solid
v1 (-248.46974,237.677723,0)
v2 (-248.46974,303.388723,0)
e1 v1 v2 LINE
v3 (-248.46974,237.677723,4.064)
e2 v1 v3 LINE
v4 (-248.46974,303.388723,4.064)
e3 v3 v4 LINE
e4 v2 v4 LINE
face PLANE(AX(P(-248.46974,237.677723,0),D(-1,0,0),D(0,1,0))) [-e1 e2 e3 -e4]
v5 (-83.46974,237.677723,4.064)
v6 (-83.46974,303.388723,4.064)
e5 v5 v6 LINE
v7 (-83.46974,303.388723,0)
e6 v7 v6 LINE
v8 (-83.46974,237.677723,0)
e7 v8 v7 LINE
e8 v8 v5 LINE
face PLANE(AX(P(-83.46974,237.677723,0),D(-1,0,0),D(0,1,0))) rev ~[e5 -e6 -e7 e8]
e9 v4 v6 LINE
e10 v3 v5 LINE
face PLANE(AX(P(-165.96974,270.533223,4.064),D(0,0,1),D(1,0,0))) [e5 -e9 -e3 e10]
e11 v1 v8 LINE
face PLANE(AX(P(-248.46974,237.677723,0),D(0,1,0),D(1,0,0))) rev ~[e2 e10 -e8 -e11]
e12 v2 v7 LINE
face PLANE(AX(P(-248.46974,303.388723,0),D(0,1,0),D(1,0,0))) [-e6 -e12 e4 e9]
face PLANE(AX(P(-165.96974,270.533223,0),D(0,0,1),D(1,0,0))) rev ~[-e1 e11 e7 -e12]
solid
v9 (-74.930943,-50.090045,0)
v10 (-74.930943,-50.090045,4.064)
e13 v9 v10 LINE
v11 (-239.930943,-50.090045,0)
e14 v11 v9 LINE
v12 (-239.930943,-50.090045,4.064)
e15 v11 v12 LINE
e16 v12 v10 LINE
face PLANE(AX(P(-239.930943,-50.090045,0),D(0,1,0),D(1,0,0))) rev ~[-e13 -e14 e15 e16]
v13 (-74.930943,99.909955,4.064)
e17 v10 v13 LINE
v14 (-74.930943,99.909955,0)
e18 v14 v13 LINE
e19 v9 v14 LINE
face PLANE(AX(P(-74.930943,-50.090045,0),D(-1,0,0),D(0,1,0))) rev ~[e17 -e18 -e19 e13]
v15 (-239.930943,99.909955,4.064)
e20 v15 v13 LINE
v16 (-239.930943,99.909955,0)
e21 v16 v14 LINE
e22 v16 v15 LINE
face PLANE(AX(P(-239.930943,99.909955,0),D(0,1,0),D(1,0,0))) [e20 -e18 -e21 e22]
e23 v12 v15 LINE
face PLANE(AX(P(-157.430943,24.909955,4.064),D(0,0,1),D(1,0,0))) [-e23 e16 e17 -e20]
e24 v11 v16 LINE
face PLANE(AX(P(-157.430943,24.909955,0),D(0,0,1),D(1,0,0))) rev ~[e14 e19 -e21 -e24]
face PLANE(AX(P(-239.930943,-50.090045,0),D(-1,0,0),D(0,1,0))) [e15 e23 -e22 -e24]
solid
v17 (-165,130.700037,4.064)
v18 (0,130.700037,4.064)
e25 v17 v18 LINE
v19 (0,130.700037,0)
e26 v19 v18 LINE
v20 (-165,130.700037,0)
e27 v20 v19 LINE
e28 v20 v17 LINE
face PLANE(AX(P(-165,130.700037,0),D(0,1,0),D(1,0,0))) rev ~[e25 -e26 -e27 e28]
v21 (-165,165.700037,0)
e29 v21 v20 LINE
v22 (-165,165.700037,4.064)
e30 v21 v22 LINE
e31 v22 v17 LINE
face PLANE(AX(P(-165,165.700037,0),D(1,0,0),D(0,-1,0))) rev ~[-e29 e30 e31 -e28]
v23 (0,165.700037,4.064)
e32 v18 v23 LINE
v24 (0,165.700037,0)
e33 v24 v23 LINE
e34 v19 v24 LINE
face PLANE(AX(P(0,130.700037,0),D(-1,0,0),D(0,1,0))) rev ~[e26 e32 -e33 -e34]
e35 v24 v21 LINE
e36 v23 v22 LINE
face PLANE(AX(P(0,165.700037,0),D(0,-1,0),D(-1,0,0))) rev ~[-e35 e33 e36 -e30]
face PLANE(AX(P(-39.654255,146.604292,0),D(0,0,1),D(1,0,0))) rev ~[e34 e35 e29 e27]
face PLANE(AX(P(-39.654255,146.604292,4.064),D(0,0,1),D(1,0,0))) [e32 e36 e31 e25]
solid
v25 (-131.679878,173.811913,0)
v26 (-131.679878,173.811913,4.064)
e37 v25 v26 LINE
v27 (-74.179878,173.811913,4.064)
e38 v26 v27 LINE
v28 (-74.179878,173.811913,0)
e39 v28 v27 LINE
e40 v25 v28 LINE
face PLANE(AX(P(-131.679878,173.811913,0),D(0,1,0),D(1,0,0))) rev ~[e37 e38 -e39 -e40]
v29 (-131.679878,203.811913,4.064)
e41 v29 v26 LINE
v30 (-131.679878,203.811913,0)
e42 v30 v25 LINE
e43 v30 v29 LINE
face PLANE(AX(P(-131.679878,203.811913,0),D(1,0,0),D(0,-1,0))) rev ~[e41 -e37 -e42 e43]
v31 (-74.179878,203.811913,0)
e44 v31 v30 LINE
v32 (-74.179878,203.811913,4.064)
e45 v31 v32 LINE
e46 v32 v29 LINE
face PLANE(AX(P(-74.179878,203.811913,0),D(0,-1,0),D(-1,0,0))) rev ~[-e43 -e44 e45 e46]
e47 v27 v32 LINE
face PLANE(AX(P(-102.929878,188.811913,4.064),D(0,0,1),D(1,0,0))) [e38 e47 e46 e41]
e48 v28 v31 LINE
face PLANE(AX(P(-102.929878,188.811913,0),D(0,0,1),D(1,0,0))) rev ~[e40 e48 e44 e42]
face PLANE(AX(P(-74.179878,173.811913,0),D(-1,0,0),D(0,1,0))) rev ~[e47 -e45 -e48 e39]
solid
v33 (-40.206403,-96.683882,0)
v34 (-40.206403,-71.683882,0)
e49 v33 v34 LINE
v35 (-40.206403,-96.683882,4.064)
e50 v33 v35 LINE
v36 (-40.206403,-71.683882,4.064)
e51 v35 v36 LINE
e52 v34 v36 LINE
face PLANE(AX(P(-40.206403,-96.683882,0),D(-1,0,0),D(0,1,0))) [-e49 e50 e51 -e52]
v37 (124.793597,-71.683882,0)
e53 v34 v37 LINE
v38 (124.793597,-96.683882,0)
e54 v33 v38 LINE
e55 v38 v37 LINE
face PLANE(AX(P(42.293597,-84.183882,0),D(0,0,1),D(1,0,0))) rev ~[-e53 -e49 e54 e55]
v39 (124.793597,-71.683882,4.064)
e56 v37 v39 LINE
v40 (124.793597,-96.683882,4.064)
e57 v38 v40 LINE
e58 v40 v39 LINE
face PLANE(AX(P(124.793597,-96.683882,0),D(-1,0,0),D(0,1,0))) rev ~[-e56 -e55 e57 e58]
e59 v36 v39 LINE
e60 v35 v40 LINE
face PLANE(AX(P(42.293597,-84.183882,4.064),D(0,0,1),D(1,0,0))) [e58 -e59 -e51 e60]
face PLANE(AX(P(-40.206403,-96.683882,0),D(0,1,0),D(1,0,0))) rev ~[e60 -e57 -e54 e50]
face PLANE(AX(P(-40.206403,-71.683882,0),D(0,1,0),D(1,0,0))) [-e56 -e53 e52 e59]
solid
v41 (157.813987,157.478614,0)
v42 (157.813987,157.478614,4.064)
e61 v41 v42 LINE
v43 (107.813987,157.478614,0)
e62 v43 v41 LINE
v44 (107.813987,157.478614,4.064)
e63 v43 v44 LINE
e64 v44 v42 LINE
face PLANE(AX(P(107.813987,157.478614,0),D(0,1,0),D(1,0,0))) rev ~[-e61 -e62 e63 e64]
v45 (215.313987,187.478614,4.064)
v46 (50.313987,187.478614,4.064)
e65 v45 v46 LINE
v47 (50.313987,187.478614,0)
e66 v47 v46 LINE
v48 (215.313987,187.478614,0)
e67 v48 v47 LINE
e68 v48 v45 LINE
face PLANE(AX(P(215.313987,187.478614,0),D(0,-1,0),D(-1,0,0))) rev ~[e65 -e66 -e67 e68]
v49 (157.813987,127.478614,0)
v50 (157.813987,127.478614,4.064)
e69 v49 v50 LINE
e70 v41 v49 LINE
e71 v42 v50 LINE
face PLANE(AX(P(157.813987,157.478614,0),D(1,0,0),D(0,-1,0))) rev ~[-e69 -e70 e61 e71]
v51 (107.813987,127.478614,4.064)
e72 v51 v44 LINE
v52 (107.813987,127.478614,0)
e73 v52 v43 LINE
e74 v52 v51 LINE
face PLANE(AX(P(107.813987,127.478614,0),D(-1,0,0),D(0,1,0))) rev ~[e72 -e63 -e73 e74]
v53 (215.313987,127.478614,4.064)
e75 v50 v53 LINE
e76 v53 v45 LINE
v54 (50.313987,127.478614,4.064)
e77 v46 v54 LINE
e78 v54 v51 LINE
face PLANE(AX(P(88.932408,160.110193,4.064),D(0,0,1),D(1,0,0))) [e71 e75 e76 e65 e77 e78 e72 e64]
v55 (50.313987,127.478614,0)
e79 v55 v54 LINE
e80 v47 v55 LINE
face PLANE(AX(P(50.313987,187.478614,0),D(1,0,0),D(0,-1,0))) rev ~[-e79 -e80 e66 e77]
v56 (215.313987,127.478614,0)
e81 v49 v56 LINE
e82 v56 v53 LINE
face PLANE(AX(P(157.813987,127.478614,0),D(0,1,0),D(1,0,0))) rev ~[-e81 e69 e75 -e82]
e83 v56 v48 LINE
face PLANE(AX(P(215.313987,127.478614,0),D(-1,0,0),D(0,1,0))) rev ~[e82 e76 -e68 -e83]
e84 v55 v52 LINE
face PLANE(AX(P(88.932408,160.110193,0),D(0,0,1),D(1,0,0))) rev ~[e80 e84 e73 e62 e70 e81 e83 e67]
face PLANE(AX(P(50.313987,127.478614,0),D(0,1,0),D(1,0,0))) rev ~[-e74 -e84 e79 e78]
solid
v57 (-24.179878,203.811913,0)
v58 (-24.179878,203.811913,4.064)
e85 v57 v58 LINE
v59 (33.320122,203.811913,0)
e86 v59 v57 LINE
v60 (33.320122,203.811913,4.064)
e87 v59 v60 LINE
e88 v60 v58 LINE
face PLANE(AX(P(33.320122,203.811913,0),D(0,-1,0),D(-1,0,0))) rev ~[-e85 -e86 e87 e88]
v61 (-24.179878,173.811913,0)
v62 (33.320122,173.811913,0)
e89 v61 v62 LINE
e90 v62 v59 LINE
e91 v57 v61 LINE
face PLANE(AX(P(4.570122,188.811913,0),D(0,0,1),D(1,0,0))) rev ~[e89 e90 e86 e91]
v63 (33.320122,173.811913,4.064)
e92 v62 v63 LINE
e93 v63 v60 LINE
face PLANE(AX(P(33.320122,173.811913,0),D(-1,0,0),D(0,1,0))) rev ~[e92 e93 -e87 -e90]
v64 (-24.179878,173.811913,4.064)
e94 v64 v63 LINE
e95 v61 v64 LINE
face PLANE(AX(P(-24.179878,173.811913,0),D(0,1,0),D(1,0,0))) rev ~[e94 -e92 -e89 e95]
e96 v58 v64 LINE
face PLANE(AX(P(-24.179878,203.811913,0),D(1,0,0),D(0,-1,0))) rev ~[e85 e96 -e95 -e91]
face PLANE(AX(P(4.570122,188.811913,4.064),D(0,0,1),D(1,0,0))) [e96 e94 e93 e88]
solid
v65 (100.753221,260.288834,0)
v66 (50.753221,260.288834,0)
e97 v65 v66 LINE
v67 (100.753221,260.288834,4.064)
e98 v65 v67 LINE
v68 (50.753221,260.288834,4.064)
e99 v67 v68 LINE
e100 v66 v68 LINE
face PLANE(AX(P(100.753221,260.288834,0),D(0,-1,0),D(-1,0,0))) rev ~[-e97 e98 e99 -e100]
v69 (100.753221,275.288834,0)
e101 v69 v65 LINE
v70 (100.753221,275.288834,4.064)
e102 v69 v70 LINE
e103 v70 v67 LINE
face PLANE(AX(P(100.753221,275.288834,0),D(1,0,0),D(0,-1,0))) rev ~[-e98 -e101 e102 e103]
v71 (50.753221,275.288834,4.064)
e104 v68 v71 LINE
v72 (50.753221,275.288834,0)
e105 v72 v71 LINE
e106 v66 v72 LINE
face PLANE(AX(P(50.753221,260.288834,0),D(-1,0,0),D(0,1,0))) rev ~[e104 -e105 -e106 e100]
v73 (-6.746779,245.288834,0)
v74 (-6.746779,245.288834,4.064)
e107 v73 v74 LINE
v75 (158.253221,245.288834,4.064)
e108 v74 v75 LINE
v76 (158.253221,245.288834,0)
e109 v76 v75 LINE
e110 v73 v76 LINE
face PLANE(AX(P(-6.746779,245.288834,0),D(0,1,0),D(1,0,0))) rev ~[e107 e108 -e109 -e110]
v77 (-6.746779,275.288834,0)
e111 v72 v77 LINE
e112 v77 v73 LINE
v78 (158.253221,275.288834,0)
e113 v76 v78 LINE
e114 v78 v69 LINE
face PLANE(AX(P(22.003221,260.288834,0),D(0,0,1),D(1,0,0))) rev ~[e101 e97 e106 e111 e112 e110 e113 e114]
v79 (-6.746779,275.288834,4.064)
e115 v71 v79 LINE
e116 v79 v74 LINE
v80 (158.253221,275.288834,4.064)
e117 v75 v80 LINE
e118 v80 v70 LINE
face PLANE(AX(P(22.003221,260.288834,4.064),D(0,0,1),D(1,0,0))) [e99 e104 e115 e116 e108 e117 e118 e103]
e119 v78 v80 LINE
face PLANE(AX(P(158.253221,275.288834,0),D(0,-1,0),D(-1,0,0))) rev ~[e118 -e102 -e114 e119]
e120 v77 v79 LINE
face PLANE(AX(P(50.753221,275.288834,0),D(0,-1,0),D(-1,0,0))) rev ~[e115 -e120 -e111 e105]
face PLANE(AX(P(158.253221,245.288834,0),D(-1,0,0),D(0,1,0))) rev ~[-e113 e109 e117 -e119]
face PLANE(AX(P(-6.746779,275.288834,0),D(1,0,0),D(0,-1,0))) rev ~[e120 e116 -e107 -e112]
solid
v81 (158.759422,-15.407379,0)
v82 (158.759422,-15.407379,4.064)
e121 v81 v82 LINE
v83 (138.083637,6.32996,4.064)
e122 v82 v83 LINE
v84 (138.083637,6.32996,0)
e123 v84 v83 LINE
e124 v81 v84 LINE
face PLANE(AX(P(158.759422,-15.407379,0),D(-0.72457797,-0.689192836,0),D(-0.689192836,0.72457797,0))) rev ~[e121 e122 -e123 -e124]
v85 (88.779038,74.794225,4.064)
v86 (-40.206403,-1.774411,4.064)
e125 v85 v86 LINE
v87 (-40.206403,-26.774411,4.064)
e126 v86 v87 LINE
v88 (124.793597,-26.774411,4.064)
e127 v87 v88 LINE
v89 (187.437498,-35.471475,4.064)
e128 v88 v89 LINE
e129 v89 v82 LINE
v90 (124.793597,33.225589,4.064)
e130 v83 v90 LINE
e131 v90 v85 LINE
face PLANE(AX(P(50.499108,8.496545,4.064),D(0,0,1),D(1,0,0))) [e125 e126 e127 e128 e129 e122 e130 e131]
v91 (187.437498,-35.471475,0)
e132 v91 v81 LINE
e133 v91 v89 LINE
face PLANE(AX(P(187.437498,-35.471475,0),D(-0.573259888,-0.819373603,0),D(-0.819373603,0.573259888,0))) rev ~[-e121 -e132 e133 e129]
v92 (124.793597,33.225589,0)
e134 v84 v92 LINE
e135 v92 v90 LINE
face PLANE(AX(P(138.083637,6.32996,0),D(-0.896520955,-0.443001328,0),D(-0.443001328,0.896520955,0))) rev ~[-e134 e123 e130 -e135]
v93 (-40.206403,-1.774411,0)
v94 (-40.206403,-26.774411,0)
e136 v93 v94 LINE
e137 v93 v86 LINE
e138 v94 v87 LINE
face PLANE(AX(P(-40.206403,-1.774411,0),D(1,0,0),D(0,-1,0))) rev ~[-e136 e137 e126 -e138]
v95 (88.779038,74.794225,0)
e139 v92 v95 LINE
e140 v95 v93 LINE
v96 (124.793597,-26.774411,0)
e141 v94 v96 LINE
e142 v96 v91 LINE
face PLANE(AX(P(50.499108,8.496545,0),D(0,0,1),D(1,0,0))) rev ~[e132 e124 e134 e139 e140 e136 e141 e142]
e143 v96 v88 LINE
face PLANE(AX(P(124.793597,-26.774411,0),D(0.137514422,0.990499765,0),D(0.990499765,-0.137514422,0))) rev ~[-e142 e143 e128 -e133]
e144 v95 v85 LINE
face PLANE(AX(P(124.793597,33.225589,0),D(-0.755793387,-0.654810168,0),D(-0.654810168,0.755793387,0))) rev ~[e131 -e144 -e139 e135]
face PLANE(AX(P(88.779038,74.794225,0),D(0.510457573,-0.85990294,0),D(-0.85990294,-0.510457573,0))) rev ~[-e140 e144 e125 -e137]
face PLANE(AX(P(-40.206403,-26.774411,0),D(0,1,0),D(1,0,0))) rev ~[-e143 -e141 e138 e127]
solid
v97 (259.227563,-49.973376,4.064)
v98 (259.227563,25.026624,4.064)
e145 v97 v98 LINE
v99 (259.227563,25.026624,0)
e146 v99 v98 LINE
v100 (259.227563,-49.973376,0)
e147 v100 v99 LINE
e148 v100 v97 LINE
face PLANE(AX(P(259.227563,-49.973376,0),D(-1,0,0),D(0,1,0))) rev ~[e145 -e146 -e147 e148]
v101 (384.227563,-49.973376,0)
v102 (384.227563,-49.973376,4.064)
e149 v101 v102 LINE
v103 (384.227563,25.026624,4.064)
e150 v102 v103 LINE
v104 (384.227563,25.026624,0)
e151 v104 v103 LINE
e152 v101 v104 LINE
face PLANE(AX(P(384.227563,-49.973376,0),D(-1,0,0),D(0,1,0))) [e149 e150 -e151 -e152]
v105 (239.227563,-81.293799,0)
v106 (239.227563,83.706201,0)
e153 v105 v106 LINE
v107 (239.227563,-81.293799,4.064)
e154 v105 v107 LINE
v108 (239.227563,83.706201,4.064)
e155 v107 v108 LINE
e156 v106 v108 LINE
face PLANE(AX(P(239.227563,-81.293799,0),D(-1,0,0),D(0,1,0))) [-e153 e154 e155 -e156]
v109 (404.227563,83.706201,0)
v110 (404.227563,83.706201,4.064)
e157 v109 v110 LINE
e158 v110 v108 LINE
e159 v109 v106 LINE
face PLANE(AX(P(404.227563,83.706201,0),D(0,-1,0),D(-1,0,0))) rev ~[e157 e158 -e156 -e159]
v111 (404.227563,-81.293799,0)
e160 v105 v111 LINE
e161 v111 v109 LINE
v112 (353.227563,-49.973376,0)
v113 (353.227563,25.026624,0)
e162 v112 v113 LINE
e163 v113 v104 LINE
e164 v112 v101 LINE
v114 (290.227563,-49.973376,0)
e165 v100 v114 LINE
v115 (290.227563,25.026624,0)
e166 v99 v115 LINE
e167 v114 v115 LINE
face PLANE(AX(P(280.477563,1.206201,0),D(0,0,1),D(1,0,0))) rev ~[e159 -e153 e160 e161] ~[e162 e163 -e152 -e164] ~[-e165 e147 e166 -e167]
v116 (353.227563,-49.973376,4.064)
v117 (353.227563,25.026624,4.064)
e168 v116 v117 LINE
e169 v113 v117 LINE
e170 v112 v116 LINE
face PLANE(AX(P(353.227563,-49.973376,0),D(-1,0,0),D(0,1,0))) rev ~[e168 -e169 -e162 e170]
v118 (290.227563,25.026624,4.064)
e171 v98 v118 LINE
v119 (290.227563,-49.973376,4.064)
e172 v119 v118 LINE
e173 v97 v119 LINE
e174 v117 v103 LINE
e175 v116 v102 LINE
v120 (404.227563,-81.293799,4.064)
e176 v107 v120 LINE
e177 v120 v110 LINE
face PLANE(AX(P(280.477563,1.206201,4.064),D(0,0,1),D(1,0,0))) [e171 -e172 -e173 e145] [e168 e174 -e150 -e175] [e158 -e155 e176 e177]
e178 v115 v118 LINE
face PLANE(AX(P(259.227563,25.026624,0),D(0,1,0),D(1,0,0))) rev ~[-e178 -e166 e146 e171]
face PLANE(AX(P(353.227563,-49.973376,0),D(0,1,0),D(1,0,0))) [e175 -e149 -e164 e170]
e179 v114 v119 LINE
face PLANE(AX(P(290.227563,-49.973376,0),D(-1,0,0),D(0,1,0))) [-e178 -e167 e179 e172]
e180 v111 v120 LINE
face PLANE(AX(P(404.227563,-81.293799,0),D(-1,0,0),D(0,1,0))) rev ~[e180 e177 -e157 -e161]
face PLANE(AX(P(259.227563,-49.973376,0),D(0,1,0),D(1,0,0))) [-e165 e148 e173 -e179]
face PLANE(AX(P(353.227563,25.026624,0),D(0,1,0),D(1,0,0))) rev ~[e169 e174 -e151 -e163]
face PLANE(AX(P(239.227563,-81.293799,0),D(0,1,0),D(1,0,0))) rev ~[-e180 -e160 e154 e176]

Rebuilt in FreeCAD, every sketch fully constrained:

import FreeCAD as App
import Part
import Sketcher
from FreeCAD import Vector
Q = App.Units.Quantity


def add_polygon(sketch, points):
    """Adds a closed chain of lines whose ends are joined by coincident constraints."""
    first, n = sketch.GeometryCount, len(points)
    for a, b in zip(points, points[1:] + points[:1]):
        sketch.addGeometry(Part.LineSegment(App.Vector(*a, 0), App.Vector(*b, 0)), False)
    for i in range(n):
        sketch.addConstraint(Sketcher.Constraint("Coincident", first + i, 2, first + (i + 1) % n, 1))

doc = App.newDocument("Part")
params = doc.addObject("Spreadsheet::Sheet", "Params")
for row, (alias, value) in enumerate([
    ("sketch1_width", "165 mm"),
    ("sketch1_width2", "50 mm"),
    ("sketch1_width3", "31 mm"),
    ("sketch1_height", "25 mm"),
    ("sketch1_height2", "60 mm"),
    ("pad1_length", "4.064 mm"),
], start=1):
    params.set(f"A{row}", alias)
    params.set(f"B{row}", "=" + value)
    params.setAlias(f"B{row}", alias)

body = doc.addObject("PartDesign::Body", "Body")
body.AllowCompound = True

sketch1 = doc.addObject("Sketcher::SketchObject", "Sketch")
body.addObject(sketch1)
sketch1.AttachmentSupport = (doc.XY_Plane, [""])
sketch1.MapMode = "FlatFace"
add_polygon(sketch1, [(125, 33), (89, 75), (-40, -2), (-40, -27), (125, -27), (187, -35), (159, -15), (138, 6)])
add_polygon(sketch1, [(-40, -72), (-40, -97), (125, -97), (125, -72)])
add_polygon(sketch1, [(50, 187), (50, 127), (108, 127), (108, 157), (158, 157), (158, 127), (215, 127), (215, 187)])
add_polygon(sketch1, [(-240, 100), (-240, -50), (-75, -50), (-75, 100)])
add_polygon(sketch1, [(239, 84), (239, -81), (404, -81), (404, 84)])
add_polygon(sketch1, [(290, -50), (259, -50), (259, 25), (290, 25)])
add_polygon(sketch1, [(384, -50), (353, -50), (353, 25), (384, 25)])
add_polygon(sketch1, [(-248, 303), (-248, 238), (-83, 238), (-83, 303)])
add_polygon(sketch1, [(0, 131), (0, 166), (-165, 166), (-165, 131)])
add_polygon(sketch1, [(51, 275), (-7, 275), (-7, 245), (158, 245), (158, 275), (101, 275), (101, 260), (51, 260)])
add_polygon(sketch1, [(-74, 204), (-132, 204), (-132, 174), (-74, 174)])
add_polygon(sketch1, [(33, 204), (-24, 204), (-24, 174), (33, 174)])
sketch1.addConstraint([
    Sketcher.Constraint("Vertical", 2),
    Sketcher.Constraint("Horizontal", 3),
    Sketcher.Constraint("Vertical", 8),
    Sketcher.Constraint("Horizontal", 9),
    Sketcher.Constraint("Vertical", 10),
    Sketcher.Constraint("Horizontal", 11),
    Sketcher.Constraint("Vertical", 12),
    Sketcher.Constraint("Horizontal", 13),
    Sketcher.Constraint("Vertical", 14),
    Sketcher.Constraint("Horizontal", 15),
    Sketcher.Constraint("Vertical", 16),
    Sketcher.Constraint("Horizontal", 17),
    Sketcher.Constraint("Vertical", 18),
    Sketcher.Constraint("Horizontal", 19),
    Sketcher.Constraint("Vertical", 20),
    Sketcher.Constraint("Horizontal", 21),
    Sketcher.Constraint("Vertical", 22),
    Sketcher.Constraint("Horizontal", 23),
    Sketcher.Constraint("Vertical", 24),
    Sketcher.Constraint("Horizontal", 25),
    Sketcher.Constraint("Vertical", 26),
    Sketcher.Constraint("Horizontal", 27),
    Sketcher.Constraint("Horizontal", 28),
    Sketcher.Constraint("Vertical", 29),
    Sketcher.Constraint("Horizontal", 30),
    Sketcher.Constraint("Vertical", 31),
    Sketcher.Constraint("Horizontal", 32),
    Sketcher.Constraint("Vertical", 33),
    Sketcher.Constraint("Horizontal", 34),
    Sketcher.Constraint("Vertical", 35),
    Sketcher.Constraint("Vertical", 36),
    Sketcher.Constraint("Horizontal", 37),
    Sketcher.Constraint("Vertical", 38),
    Sketcher.Constraint("Horizontal", 39),
    Sketcher.Constraint("Vertical", 40),
    Sketcher.Constraint("Horizontal", 41),
    Sketcher.Constraint("Vertical", 42),
    Sketcher.Constraint("Horizontal", 43),
    Sketcher.Constraint("Horizontal", 44),
    Sketcher.Constraint("Vertical", 45),
    Sketcher.Constraint("Horizontal", 46),
    Sketcher.Constraint("Vertical", 47),
    Sketcher.Constraint("Horizontal", 48),
    Sketcher.Constraint("Vertical", 49),
    Sketcher.Constraint("Horizontal", 50),
    Sketcher.Constraint("Vertical", 51),
    Sketcher.Constraint("Horizontal", 52),
    Sketcher.Constraint("Vertical", 53),
    Sketcher.Constraint("Horizontal", 54),
    Sketcher.Constraint("Vertical", 55),
    Sketcher.Constraint("Horizontal", 56),
    Sketcher.Constraint("Vertical", 57),
    Sketcher.Constraint("Horizontal", 58),
    Sketcher.Constraint("Vertical", 59),
    Sketcher.Constraint("PointOnObject", 40, 2, -2),
    Sketcher.Constraint("Horizontal", 13, 2, 16, 2),
    Sketcher.Constraint("Horizontal", 31, 2, 32, 2),
    Sketcher.Constraint("Horizontal", 30, 2, 33, 2),
    Sketcher.Constraint("Horizontal", 44, 2, 47, 2),
    Sketcher.Constraint("Horizontal", 55, 2, 56, 2),
    Sketcher.Constraint("Horizontal", 54, 2, 57, 2),
    Sketcher.Constraint("Vertical", 3, 2, 7, 2),
    Sketcher.Constraint("Vertical", 2, 2, 8, 2),
    Sketcher.Constraint("Vertical", 7, 2, 9, 2),
    Sketcher.Constraint("Equal", 13, 17),
    Sketcher.Constraint("Equal", 11, 19),
    Sketcher.Constraint("Equal", 19, 21),
    Sketcher.Constraint("Equal", 23, 25),
    Sketcher.Constraint("Equal", 30, 32),
    Sketcher.Constraint("Equal", 27, 37),
    Sketcher.Constraint("Equal", 39, 41),
    Sketcher.Constraint("Equal", 17, 44),
    Sketcher.Constraint("Equal", 43, 46),
    Sketcher.Constraint("Equal", 44, 48),
    Sketcher.Constraint("Equal", 48, 52),
    Sketcher.Constraint("Equal", 54, 56),
    Sketcher.Constraint("Equal", 2, 8),
    Sketcher.Constraint("Equal", 46, 24),
    Sketcher.Constraint("Equal", 16, 45),
    Sketcher.Constraint("Equal", 47, 53),
    Sketcher.Constraint("Equal", 6, 7),
    Sketcher.Constraint("DistanceX", 3, 1, 3, 2, Q("165 mm")),
    Sketcher.Constraint("DistanceX", 15, 1, 15, 2, Q("50 mm")),
    Sketcher.Constraint("DistanceX", 28, 2, 28, 1, Q("31 mm")),
    Sketcher.Constraint("DistanceY", 2, 2, 2, 1, Q("25 mm")),
    Sketcher.Constraint("DistanceY", 12, 2, 12, 1, Q("60 mm")),
    Sketcher.Constraint("DistanceY", 14, 1, 14, 2, Q("30 mm")),
    Sketcher.Constraint("DistanceY", 20, 2, 20, 1, Q("150 mm")),
    Sketcher.Constraint("DistanceY", 29, 1, 29, 2, Q("75 mm")),
    Sketcher.Constraint("DistanceY", 40, 1, 40, 2, Q("35 mm")),
    Sketcher.Constraint("DistanceY", 49, 2, 49, 1, Q("15 mm")),
    Sketcher.Constraint("Distance", 0, Q("55 mm")),
    Sketcher.Constraint("Distance", 1, Q("150 mm")),
    Sketcher.Constraint("Distance", 5, Q("35 mm")),
    Sketcher.Constraint("Distance", 6, Q("30 mm")),
    Sketcher.Constraint("DistanceY", 3, 2, 7, 2, Q("60 mm")),
    Sketcher.Constraint("DistanceX", 24, 2, 28, 2, Q("20 mm")),
    Sketcher.Constraint("DistanceX", 32, 2, 25, 2, Q("51 mm")),
    Sketcher.Constraint("DistanceX", 55, 2, 56, 2, Q("50 mm")),
    Sketcher.Constraint("DistanceY", 36, 2, 36, 1, Q("65.711 mm")),
    Sketcher.Constraint("DistanceX", -1, 1, 4, 2, Q("187.437498 mm")),
    Sketcher.Constraint("DistanceY", 24, 2, -1, 1, Q("81.293799 mm")),
    Sketcher.Constraint("DistanceX", 3, 2, 4, 2, Q("62.643901 mm")),
    Sketcher.Constraint("DistanceY", 4, 2, 0, 2, Q("110.2657 mm")),
    Sketcher.Constraint("DistanceX", 0, 2, 6, 2, Q("49.304599 mm")),
    Sketcher.Constraint("DistanceY", 28, 2, 4, 2, Q("14.501901 mm")),
    Sketcher.Constraint("DistanceX", 55, 2, 45, 2, Q("67.433099 mm")),
    Sketcher.Constraint("DistanceY", 58, 2, 19, 2, Q("13.666701 mm")),
    Sketcher.Constraint("DistanceY", 1, 2, -1, 1, Q("1.774411 mm")),
    Sketcher.Constraint("DistanceY", 8, 2, -1, 1, Q("96.683882 mm")),
    Sketcher.Constraint("DistanceX", 36, 2, -1, 1, Q("248.46974 mm")),
    Sketcher.Constraint("DistanceX", 44, 2, -1, 1, Q("6.746779 mm")),
    Sketcher.Constraint("DistanceX", 12, 2, 0, 2, Q("38.465051 mm")),
    Sketcher.Constraint("DistanceY", 0, 2, 12, 2, Q("52.684389 mm")),
    Sketcher.Constraint("DistanceX", 20, 2, 11, 2, Q("199.72454 mm")),
    Sketcher.Constraint("DistanceY", 20, 2, 12, 2, Q("177.568659 mm")),
    Sketcher.Constraint("DistanceX", 5, 2, 24, 2, Q("80.468141 mm")),
    Sketcher.Constraint("DistanceY", 20, 2, 36, 2, Q("287.767768 mm")),
    Sketcher.Constraint("DistanceY", 44, 2, 38, 2, Q("28.099889 mm")),
    Sketcher.Constraint("DistanceY", -1, 1, 40, 2, Q("165.700037 mm")),
])
sketch1.setExpression("Constraints[141]", "Params.sketch1_width")
sketch1.setExpression("Constraints[142]", "Params.sketch1_width2")
sketch1.setExpression("Constraints[143]", "Params.sketch1_width3")
sketch1.setExpression("Constraints[144]", "Params.sketch1_height")
sketch1.setExpression("Constraints[145]", "Params.sketch1_height2")
pad1 = doc.addObject("PartDesign::Pad", "Pad")
body.addObject(pad1)
pad1.Profile = sketch1
pad1.setExpression("Length", "Params.pad1_length")

doc.recompute()
